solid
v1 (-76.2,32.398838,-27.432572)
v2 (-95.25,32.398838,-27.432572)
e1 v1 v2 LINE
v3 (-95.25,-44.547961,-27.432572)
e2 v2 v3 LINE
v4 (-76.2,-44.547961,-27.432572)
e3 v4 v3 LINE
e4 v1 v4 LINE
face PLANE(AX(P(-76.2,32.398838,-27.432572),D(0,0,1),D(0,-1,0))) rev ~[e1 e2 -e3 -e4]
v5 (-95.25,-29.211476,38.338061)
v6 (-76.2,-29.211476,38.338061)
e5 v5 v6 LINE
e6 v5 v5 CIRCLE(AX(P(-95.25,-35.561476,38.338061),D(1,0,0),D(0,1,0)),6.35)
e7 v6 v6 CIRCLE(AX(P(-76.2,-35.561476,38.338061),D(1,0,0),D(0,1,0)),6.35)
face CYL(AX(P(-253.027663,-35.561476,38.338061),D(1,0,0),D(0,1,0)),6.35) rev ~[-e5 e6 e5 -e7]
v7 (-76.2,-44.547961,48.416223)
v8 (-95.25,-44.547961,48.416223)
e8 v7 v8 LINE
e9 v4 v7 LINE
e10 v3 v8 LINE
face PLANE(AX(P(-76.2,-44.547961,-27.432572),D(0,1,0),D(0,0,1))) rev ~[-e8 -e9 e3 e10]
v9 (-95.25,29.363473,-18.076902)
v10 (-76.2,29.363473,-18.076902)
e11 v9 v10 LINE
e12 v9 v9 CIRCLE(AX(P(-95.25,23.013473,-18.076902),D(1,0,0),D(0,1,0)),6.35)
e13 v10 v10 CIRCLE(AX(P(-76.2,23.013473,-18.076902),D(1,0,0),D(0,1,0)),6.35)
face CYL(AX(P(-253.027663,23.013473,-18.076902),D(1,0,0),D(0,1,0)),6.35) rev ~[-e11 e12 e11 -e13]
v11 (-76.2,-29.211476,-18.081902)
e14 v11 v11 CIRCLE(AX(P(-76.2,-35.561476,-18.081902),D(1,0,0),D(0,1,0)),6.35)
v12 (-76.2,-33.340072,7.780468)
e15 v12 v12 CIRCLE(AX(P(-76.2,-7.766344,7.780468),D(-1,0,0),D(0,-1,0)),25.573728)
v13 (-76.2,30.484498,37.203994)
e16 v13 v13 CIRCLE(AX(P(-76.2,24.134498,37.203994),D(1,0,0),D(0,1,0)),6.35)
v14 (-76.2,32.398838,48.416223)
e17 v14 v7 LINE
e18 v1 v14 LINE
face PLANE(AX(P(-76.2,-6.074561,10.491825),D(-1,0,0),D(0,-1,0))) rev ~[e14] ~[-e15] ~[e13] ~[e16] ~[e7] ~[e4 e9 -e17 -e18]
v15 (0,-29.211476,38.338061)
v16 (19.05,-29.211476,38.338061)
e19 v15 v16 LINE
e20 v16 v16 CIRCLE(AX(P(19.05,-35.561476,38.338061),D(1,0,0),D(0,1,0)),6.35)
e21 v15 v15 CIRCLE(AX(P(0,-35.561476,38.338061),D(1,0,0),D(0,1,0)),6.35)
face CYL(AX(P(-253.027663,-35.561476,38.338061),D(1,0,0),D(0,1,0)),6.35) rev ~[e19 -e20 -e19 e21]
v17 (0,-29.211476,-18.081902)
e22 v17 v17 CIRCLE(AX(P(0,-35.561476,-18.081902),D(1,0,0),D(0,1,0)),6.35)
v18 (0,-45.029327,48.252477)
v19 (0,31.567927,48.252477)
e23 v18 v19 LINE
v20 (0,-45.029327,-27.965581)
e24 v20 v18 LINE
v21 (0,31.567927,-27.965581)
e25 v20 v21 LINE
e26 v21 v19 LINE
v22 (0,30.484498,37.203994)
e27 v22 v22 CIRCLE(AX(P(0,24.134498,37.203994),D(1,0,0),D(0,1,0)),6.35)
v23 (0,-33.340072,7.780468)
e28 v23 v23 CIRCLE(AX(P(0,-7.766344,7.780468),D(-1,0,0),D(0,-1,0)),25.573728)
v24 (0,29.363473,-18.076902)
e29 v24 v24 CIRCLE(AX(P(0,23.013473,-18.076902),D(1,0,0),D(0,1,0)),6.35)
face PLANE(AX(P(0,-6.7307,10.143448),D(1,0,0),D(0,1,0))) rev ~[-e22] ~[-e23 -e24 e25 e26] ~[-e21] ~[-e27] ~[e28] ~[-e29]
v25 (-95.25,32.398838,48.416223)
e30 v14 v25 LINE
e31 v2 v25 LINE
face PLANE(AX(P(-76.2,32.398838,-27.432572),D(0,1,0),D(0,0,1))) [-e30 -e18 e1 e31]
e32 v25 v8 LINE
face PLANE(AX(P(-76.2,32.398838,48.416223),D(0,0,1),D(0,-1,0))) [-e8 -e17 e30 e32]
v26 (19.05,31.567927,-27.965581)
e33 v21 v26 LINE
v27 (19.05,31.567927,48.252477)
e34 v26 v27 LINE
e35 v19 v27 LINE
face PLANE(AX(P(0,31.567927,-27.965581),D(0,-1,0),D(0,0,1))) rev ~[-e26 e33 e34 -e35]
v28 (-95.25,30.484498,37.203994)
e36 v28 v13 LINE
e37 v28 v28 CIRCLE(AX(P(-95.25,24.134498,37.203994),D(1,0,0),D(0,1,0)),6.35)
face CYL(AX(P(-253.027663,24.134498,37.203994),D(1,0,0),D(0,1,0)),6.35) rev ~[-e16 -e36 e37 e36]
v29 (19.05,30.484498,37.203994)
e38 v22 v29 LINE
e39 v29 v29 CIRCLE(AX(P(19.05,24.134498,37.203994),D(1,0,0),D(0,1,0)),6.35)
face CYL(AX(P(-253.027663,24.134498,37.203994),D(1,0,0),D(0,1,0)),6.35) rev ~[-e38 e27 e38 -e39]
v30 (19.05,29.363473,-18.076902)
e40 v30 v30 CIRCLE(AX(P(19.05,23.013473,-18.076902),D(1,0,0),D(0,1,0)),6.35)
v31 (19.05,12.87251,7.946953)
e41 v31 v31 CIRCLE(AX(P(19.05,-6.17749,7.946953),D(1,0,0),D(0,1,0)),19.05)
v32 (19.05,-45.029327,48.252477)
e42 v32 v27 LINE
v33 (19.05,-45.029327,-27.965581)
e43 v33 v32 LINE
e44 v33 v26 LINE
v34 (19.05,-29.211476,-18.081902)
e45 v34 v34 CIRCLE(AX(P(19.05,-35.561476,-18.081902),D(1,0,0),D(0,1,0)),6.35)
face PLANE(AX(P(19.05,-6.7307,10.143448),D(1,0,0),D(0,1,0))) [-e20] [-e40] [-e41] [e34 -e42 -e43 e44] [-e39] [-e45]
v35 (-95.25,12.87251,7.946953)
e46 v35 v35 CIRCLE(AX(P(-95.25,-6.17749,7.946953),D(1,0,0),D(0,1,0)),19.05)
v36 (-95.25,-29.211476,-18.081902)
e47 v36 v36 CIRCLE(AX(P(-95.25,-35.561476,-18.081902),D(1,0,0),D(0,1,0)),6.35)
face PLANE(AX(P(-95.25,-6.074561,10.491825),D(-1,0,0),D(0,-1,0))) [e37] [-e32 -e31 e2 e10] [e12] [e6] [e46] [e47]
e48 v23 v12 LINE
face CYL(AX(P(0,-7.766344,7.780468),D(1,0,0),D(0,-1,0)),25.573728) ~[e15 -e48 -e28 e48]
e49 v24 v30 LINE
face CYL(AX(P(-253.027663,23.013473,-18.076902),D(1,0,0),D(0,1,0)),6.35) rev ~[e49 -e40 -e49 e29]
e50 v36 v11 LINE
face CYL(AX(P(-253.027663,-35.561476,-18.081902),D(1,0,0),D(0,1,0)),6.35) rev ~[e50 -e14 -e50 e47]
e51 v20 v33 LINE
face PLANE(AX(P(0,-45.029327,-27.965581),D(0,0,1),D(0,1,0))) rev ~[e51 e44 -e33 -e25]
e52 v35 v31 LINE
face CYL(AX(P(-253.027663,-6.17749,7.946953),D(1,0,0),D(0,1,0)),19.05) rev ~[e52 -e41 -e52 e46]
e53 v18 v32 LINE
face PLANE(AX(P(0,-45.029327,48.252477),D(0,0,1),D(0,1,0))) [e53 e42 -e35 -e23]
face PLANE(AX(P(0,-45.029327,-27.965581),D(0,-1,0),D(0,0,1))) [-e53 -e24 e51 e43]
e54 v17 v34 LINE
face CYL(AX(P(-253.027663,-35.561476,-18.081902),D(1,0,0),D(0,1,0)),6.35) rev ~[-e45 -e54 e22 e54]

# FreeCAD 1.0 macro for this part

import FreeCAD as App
import Part
import Sketcher
Q = App.Units.Quantity


def add_polygon(sketch, points):
    """Adds a closed chain of lines whose ends are joined by coincident constraints."""
    first, n = sketch.GeometryCount, len(points)
    for a, b in zip(points, points[1:] + points[:1]):
        sketch.addGeometry(Part.LineSegment(App.Vector(*a, 0), App.Vector(*b, 0)), False)
    for i in range(n):
        sketch.addConstraint(Sketcher.Constraint("Coincident", first + i, 2, first + (i + 1) % n, 1))

doc = App.newDocument("Part")
params = doc.addObject("Spreadsheet::Sheet", "Params")
for row, (alias, value) in enumerate([
    ("pad1_length", "0.75 in"),
    ("pad2_length", "3 in"),
    ("pad3_length", "0.75 in"),
    ("sketch4_diameter", "0.5 in"),
    ("hole_diameter", "0.5 in"),
    ("sketch5_diameter", "1.5 in"),
    ("hole2_diameter", "1.5 in"),
], start=1):
    params.set(f"A{row}", alias)
    params.set(f"B{row}", "=" + value)
    params.setAlias(f"B{row}", alias)

body = doc.addObject("PartDesign::Body", "Body")

sketch1 = doc.addObject("Sketcher::SketchObject", "Sketch")
body.addObject(sketch1)
sketch1.AttachmentSupport = (doc.YZ_Plane, [""])
sketch1.MapMode = "FlatFace"
add_polygon(sketch1, [(-45.029327, 48.252477), (-45.029327, -27.965581), (31.567927, -27.965581), (31.567927, 48.252477)])
sketch1.addConstraint([
    Sketcher.Constraint("Vertical", 0),
    Sketcher.Constraint("Horizontal", 1),
    Sketcher.Constraint("Vertical", 2),
    Sketcher.Constraint("Horizontal", 3),
    Sketcher.Constraint("DistanceY", 0, 2, 0, 1, Q("76.218059 mm")),
    Sketcher.Constraint("DistanceX", 1, 1, 1, 2, Q("76.597254 mm")),
    Sketcher.Constraint("DistanceY", 0, 2, -1, 1, Q("27.965581 mm")),
    Sketcher.Constraint("DistanceX", 0, 2, -1, 1, Q("45.029327 mm")),
])
pad1 = doc.addObject("PartDesign::Pad", "Pad")
body.addObject(pad1)
pad1.Profile = sketch1
pad1.setExpression("Length", "Params.pad1_length")

sketch2 = doc.addObject("Sketcher::SketchObject", "Sketch001")
body.addObject(sketch2)
sketch2.AttachmentSupport = (doc.YZ_Plane, [""])
sketch2.MapMode = "FlatFace"
sketch2.addGeometry(Part.Circle(App.Vector(-7.766344, 7.780468, 0), App.Vector(0, 0, 1), 25.573728), False)
sketch2.addConstraint([
    Sketcher.Constraint("Diameter", 0, Q("51.147456 mm")),
    Sketcher.Constraint("DistanceX", 0, 3, -1, 1, Q("7.766344 mm")),
    Sketcher.Constraint("DistanceY", -1, 1, 0, 3, Q("7.780468 mm")),
])
pad2 = doc.addObject("PartDesign::Pad", "Pad001")
body.addObject(pad2)
pad2.Profile = sketch2
pad2.setExpression("Length", "Params.pad2_length")
pad2.Reversed = True

sketch3 = doc.addObject("Sketcher::SketchObject", "Sketch002")
body.addObject(sketch3)
sketch3.AttachmentSupport = (doc.YZ_Plane, [""])
sketch3.MapMode = "FlatFace"
sketch3.AttachmentOffset = App.Placement(App.Vector(0, 0, -3 * 25.4), App.Rotation())
add_polygon(sketch3, [(32.398838, 48.416223), (32.398838, -27.432572), (-44.547961, -27.432572), (-44.547961, 48.416223)])
sketch3.addConstraint([
    Sketcher.Constraint("Vertical", 0),
    Sketcher.Constraint("Horizontal", 1),
    Sketcher.Constraint("Vertical", 2),
    Sketcher.Constraint("Horizontal", 3),
    Sketcher.Constraint("DistanceX", 1, 2, 1, 1, Q("76.946799 mm")),
    Sketcher.Constraint("DistanceY", 0, 2, 0, 1, Q("75.848795 mm")),
    Sketcher.Constraint("DistanceX", -1, 1, 0, 2, Q("32.398838 mm")),
    Sketcher.Constraint("DistanceY", 0, 2, -1, 1, Q("27.432572 mm")),
])
pad3 = doc.addObject("PartDesign::Pad", "Pad002")
body.addObject(pad3)
pad3.Profile = sketch3
pad3.setExpression("Length", "Params.pad3_length")
pad3.Reversed = True

sketch4 = doc.addObject("Sketcher::SketchObject", "Sketch003")
body.addObject(sketch4)
sketch4.AttachmentSupport = (doc.YZ_Plane, [""])
sketch4.MapMode = "FlatFace"
sketch4.AttachmentOffset = App.Placement(App.Vector(0, 0, -3.75 * 25.4), App.Rotation())
sketch4.addGeometry([
    Part.Circle(App.Vector(23.013473, -18.076902, 0), App.Vector(0, 0, 1), 6.35),
    Part.Circle(App.Vector(24.134498, 37.203994, 0), App.Vector(0, 0, 1), 6.35),
    Part.Circle(App.Vector(-35.561476, 38.338061, 0), App.Vector(0, 0, 1), 6.35),
    Part.Circle(App.Vector(-35.561476, -18.081902, 0), App.Vector(0, 0, 1), 6.35),
], False)
sketch4.addConstraint([
    Sketcher.Constraint("Equal", 0, 1),
    Sketcher.Constraint("Equal", 1, 2),
    Sketcher.Constraint("Equal", 2, 3),
    Sketcher.Constraint("Vertical", 2, 3, 3, 3),
    Sketcher.Constraint("Diameter", 0, Q("0.5 in")),
    Sketcher.Constraint("DistanceX", -1, 1, 1, 3, Q("24.134498 mm")),
    Sketcher.Constraint("DistanceY", 3, 3, -1, 1, Q("18.081902 mm")),
    Sketcher.Constraint("DistanceY", 3, 3, 0, 3, Q("0.005 mm")),
    Sketcher.Constraint("DistanceY", -1, 1, 2, 3, Q("38.338061 mm")),
    Sketcher.Constraint("DistanceX", 2, 3, 0, 3, Q("58.574949 mm")),
    Sketcher.Constraint("DistanceX", -1, 1, 0, 3, Q("23.013473 mm")),
    Sketcher.Constraint("DistanceY", -1, 1, 1, 3, Q("37.203994 mm")),
])
sketch4.setExpression("Constraints[4]", "Params.sketch4_diameter")
doc.recompute()
hole = doc.addObject("PartDesign::Hole", "Hole")
body.addObject(hole)
hole.Profile = sketch4
hole.ThreadType = "None"
hole.setExpression("Diameter", "Params.hole_diameter")
hole.DepthType = "ThroughAll"
hole.Reversed = True

sketch5 = doc.addObject("Sketcher::SketchObject", "Sketch004")
body.addObject(sketch5)
sketch5.AttachmentSupport = (doc.YZ_Plane, [""])
sketch5.MapMode = "FlatFace"
sketch5.AttachmentOffset = App.Placement(App.Vector(0, 0, -3.75 * 25.4), App.Rotation())
sketch5.addGeometry(Part.Circle(App.Vector(-6.17749, 7.946953, 0), App.Vector(0, 0, 1), 19.05), False)
sketch5.addConstraint([
    Sketcher.Constraint("Diameter", 0, Q("1.5 in")),
    Sketcher.Constraint("DistanceX", 0, 3, -1, 1, Q("6.17749 mm")),
    Sketcher.Constraint("DistanceY", -1, 1, 0, 3, Q("7.946953 mm")),
])
sketch5.setExpression("Constraints[0]", "Params.sketch5_diameter")
doc.recompute()
hole2 = doc.addObject("PartDesign::Hole", "Hole001")
body.addObject(hole2)
hole2.Profile = sketch5
hole2.ThreadType = "None"
hole2.setExpression("Diameter", "Params.hole2_diameter")
hole2.DepthType = "ThroughAll"
hole2.Reversed = True

doc.recompute()
